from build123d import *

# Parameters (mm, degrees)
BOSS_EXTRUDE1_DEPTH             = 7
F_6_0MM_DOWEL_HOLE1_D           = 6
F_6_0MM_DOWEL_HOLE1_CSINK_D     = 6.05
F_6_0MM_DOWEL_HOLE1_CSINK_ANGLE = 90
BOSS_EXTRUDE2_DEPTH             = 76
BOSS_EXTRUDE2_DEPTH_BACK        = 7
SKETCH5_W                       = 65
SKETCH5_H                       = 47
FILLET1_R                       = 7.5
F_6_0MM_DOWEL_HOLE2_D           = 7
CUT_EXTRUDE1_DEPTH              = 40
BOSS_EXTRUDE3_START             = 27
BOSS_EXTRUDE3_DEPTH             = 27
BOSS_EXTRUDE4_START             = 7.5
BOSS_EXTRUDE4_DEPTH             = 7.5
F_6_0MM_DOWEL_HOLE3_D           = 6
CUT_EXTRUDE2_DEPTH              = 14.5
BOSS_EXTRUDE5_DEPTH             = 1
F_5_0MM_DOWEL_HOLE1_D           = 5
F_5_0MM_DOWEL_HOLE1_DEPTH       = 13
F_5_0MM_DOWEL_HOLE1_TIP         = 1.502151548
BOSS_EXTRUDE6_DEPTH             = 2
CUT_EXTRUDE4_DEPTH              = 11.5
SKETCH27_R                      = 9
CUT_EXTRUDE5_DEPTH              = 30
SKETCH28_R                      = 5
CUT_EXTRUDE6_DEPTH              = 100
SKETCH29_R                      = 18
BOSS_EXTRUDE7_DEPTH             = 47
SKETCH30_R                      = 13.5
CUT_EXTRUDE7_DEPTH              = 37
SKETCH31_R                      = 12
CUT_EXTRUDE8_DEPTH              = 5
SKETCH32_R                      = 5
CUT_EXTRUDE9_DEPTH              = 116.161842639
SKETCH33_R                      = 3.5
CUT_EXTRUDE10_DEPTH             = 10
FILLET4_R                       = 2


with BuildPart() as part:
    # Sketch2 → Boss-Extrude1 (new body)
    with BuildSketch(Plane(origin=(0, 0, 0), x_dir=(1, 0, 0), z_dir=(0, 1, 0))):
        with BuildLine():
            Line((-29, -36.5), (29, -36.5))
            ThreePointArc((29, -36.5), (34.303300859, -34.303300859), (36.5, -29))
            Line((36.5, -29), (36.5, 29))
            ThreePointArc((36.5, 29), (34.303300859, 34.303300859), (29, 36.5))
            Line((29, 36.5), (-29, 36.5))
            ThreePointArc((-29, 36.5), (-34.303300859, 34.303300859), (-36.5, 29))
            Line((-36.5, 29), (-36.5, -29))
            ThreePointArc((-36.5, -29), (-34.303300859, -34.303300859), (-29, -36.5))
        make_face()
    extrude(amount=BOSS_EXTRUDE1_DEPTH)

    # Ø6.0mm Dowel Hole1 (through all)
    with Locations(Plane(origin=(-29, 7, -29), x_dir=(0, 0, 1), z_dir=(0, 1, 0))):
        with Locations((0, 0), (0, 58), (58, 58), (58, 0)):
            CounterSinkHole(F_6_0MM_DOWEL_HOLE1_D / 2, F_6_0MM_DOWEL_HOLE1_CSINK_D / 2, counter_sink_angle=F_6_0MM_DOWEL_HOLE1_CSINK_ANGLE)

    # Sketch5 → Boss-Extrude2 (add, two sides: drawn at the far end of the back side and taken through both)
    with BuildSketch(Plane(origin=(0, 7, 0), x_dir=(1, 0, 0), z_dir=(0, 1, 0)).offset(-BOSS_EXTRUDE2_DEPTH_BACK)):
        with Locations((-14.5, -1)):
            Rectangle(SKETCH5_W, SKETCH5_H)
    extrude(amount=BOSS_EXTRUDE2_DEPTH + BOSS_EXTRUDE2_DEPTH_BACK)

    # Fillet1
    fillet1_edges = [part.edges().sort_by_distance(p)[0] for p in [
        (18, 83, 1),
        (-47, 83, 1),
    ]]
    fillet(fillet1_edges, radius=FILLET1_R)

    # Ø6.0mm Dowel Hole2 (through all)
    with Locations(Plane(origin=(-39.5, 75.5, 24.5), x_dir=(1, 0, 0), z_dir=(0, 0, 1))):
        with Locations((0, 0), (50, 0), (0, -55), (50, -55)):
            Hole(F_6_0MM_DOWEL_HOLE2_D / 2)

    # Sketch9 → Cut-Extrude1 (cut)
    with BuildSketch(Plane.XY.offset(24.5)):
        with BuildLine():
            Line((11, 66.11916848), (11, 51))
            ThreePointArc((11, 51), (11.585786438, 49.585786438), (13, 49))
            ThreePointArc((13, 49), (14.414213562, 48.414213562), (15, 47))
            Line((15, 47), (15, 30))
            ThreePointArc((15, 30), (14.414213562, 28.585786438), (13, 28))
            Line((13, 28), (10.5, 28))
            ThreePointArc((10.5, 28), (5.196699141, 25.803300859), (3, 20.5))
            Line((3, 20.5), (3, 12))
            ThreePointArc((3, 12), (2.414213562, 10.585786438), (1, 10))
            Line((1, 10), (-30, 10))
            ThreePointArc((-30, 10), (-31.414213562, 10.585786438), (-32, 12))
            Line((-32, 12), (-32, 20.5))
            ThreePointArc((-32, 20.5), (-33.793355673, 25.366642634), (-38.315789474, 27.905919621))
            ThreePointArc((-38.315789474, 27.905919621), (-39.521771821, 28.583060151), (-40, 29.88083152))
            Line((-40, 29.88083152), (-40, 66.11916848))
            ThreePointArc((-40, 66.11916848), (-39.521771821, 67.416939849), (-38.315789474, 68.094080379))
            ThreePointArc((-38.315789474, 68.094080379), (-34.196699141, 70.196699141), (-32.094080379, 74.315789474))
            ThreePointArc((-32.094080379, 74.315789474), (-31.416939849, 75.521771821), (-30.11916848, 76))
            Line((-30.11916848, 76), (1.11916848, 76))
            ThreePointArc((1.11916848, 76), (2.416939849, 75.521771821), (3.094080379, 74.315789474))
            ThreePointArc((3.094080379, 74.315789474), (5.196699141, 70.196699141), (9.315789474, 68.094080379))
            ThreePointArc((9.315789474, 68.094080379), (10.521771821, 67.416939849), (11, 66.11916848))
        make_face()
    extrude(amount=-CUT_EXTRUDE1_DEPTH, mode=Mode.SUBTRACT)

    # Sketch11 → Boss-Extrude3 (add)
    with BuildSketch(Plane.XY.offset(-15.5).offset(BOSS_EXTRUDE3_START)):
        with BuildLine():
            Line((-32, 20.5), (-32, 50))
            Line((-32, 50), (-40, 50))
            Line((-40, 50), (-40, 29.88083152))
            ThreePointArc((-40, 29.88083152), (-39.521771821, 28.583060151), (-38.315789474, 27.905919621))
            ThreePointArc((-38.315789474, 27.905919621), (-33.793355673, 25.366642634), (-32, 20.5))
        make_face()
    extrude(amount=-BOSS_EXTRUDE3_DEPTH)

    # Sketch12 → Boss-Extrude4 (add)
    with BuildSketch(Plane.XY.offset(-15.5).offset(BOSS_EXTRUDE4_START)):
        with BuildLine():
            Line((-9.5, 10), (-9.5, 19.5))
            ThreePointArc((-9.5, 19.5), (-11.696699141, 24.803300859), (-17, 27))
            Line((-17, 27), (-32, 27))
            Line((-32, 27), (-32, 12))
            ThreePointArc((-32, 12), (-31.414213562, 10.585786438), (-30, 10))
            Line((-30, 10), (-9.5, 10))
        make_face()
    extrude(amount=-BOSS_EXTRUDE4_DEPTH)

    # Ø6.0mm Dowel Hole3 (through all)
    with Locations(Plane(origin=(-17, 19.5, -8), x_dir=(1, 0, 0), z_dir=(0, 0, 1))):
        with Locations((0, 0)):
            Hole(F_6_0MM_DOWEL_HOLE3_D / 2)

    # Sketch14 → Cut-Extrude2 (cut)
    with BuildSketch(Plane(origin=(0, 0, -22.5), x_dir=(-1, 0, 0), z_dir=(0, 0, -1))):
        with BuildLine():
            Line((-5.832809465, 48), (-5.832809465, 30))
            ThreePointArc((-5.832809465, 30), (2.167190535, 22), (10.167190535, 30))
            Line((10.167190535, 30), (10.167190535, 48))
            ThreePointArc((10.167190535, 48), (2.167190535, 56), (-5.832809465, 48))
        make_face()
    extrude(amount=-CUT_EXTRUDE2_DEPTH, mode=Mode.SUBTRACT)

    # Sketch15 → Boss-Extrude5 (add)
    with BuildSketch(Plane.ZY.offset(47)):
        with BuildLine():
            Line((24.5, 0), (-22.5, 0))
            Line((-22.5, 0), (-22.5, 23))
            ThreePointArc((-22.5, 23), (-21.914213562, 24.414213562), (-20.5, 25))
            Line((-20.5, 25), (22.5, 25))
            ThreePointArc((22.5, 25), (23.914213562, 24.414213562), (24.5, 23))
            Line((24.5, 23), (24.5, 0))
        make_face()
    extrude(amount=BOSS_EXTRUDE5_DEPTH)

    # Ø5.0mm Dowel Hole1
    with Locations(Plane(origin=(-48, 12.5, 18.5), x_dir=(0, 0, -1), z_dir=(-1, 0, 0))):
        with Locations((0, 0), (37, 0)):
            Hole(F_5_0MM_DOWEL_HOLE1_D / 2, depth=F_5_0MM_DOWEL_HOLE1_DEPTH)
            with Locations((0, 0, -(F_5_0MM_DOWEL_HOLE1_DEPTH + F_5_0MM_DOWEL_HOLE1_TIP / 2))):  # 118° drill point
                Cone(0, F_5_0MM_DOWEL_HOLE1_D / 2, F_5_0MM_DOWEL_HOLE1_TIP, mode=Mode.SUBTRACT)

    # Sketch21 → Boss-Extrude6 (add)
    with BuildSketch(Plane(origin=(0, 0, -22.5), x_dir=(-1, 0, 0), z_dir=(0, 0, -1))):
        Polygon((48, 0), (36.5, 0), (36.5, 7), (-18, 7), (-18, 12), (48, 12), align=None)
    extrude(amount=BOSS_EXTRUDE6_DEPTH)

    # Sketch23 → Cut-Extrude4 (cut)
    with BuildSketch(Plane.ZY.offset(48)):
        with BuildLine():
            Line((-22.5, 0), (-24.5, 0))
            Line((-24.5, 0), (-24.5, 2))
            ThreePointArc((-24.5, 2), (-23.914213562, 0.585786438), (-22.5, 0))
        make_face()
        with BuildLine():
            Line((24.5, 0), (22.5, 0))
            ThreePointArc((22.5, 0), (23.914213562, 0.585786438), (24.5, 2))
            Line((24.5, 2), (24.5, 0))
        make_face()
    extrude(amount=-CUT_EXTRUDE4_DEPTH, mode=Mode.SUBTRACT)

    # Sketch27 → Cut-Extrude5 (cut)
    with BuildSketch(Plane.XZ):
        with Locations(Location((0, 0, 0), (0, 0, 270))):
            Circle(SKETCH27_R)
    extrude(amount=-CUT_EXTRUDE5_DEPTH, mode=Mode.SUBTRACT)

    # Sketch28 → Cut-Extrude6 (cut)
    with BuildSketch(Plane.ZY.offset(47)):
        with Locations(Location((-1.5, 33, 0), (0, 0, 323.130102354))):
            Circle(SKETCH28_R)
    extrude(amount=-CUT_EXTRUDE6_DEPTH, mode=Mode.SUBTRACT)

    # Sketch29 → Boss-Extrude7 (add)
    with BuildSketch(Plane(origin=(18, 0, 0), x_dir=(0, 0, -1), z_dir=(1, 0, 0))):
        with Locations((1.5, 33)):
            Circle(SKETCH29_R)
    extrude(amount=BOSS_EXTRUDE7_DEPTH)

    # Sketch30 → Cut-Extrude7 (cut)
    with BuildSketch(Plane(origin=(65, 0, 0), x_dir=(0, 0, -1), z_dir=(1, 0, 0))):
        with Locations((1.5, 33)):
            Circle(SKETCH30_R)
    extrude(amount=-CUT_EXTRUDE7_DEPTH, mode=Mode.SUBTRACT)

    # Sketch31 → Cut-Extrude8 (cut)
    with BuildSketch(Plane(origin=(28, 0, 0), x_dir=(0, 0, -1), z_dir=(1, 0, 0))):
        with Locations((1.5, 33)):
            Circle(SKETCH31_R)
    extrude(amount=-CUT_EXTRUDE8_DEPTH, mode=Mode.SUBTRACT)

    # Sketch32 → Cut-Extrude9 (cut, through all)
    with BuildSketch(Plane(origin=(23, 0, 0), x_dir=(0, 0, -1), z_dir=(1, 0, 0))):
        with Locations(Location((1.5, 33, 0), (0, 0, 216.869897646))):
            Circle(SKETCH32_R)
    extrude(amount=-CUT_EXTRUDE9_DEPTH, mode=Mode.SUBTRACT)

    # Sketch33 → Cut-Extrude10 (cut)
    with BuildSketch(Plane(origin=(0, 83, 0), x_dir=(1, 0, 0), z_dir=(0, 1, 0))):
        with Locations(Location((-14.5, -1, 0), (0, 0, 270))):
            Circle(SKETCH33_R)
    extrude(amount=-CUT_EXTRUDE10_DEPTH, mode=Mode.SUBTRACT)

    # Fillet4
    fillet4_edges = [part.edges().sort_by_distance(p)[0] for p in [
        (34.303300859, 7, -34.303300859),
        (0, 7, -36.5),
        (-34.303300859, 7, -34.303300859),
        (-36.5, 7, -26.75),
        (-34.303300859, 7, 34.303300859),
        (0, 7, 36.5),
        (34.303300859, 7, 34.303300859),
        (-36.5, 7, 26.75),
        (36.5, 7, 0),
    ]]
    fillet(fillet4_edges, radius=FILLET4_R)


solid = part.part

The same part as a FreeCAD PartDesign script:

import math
import FreeCAD as App
import Part
import Sketcher

V = App.Vector
Q = App.Units.Quantity


def edges_at(feature, points):
    """Names of the edges that pass closest to the given points."""
    edges = feature.Shape.Edges
    near = lambda p: min(range(len(edges)), key=lambda i: edges[i].distToShape(Part.Vertex(*p))[0])
    return sorted({f"Edge{near(p) + 1}" for p in points})


def add_polygon(sketch, points):
    """Adds a closed chain of lines whose ends are joined by coincident constraints."""
    first, n = sketch.GeometryCount, len(points)
    for a, b in zip(points, points[1:] + points[:1]):
        sketch.addGeometry(Part.LineSegment(App.Vector(*a, 0), App.Vector(*b, 0)), False)
    for i in range(n):
        sketch.addConstraint(Sketcher.Constraint("Coincident", first + i, 2, first + (i + 1) % n, 1))

doc = App.newDocument("Part")
body = doc.addObject("PartDesign::Body", "Body")

# Sketch on XZ plane
sketch1 = body.newObject("Sketcher::SketchObject", "Sketch")
sketch1.AttachmentSupport = (doc.getObject("XZ_Plane"), [""])
sketch1.MapMode = "FlatFace"
sketch1.addGeometry([
    Part.LineSegment(V(-29, 36.5, 0), V(29, 36.5, 0)),  # 0
    Part.ArcOfCircle(Part.Circle(V(29, 29, 0), V(0, 0, 1), 7.5), math.radians(0), math.radians(90)),  # 1
    Part.LineSegment(V(36.5, 29, 0), V(36.5, -29, 0)),  # 2
    Part.ArcOfCircle(Part.Circle(V(29, -29, 0), V(0, 0, 1), 7.5), math.radians(-90), math.radians(0)),  # 3
    Part.LineSegment(V(29, -36.5, 0), V(-29, -36.5, 0)),  # 4
    Part.ArcOfCircle(Part.Circle(V(-29, -29, 0), V(0, 0, 1), 7.5), math.radians(180), math.radians(270)),  # 5
    Part.LineSegment(V(-36.5, -29, 0), V(-36.5, 29, 0)),  # 6
    Part.ArcOfCircle(Part.Circle(V(-29, 29, 0), V(0, 0, 1), 7.5), math.radians(90), math.radians(180)),  # 7
], False)
sketch1.addConstraint([
    Sketcher.Constraint("Tangent", 0, 2, 1, 2),
    Sketcher.Constraint("Tangent", 1, 1, 2, 1),
    Sketcher.Constraint("Tangent", 2, 2, 3, 2),
    Sketcher.Constraint("Tangent", 3, 1, 4, 1),
    Sketcher.Constraint("Tangent", 4, 2, 5, 2),
    Sketcher.Constraint("Tangent", 5, 1, 6, 1),
    Sketcher.Constraint("Tangent", 6, 2, 7, 2),
    Sketcher.Constraint("Tangent", 7, 1, 0, 1),
    Sketcher.Constraint("Horizontal", 0),
    Sketcher.Constraint("Vertical", 2),
    Sketcher.Constraint("Horizontal", 4),
    Sketcher.Constraint("Vertical", 6),
    Sketcher.Constraint("Equal", 1, 3),
    Sketcher.Constraint("Equal", 3, 5),
    Sketcher.Constraint("Equal", 5, 7),
    Sketcher.Constraint("Symmetric", 1, 3, 5, 3, -1, 1),
    Sketcher.Constraint("Equal", 4, 2),
    Sketcher.Constraint("Radius", 1, Q("7.5 mm")),
    Sketcher.Constraint("DistanceX", 0, 1, 0, 2, Q("58 mm")),
])
pad1 = body.newObject("PartDesign::Pad", "Pad")
pad1.Profile = sketch1
pad1.Length = 7
pad1.Reversed = True

# Sketch on XZ plane
sketch2 = body.newObject("Sketcher::SketchObject", "Sketch001")
sketch2.AttachmentSupport = (doc.getObject("XZ_Plane"), [""])
sketch2.MapMode = "FlatFace"
sketch2.AttachmentOffset = App.Placement(V(0, 0, -7), App.Rotation())
sketch2.addGeometry([
    Part.Circle(V(-29, -29, 0), V(0, 0, 1), 3),
    Part.Circle(V(29, -29, 0), V(0, 0, 1), 3),
    Part.Circle(V(29, 29, 0), V(0, 0, 1), 3),
    Part.Circle(V(-29, 29, 0), V(0, 0, 1), 3),
], False)
sketch2.addConstraint([
    Sketcher.Constraint("Equal", 0, 1),
    Sketcher.Constraint("Equal", 1, 2),
    Sketcher.Constraint("Equal", 2, 3),
    Sketcher.Constraint("Symmetric", 0, 3, 2, 3, -1, 1),
    Sketcher.Constraint("Symmetric", 1, 3, 3, 3, -1, 1),
    Sketcher.Constraint("Symmetric", 0, 3, 1, 3, -2),
    Sketcher.Constraint("Diameter", 0, Q("6 mm")),
    Sketcher.Constraint("DistanceX", 0, 3, -1, 1, Q("29 mm")),
    Sketcher.Constraint("DistanceY", 0, 3, -1, 1, Q("29 mm")),
])
doc.recompute()
hole = body.newObject("PartDesign::Hole", "Hole")
hole.Profile = sketch2
hole.ThreadType = "None"
hole.Diameter = 6
hole.DepthType = "ThroughAll"
hole.HoleCutType = "Countersink"
hole.HoleCutDiameter = 6.05
hole.HoleCutCountersinkAngle = 90
hole.Reversed = True

# Sketch on XZ plane
sketch3 = body.newObject("Sketcher::SketchObject", "Sketch002")
sketch3.AttachmentSupport = (doc.getObject("XZ_Plane"), [""])
sketch3.MapMode = "FlatFace"
sketch3.AttachmentOffset = App.Placement(V(0, 0, -7), App.Rotation())
add_polygon(sketch3, [(-47, -22.5), (-47, 24.5), (18, 24.5), (18, -22.5)])  # lines 0-3
sketch3.addConstraint([
    Sketcher.Constraint("Vertical", 0),
    Sketcher.Constraint("Horizontal", 1),
    Sketcher.Constraint("Vertical", 2),
    Sketcher.Constraint("Horizontal", 3),
    Sketcher.Constraint("DistanceX", 1, 1, 1, 2, Q("65 mm")),
    Sketcher.Constraint("DistanceY", 0, 1, 0, 2, Q("47 mm")),
    Sketcher.Constraint("DistanceX", 0, 2, -1, 1, Q("47 mm")),
    Sketcher.Constraint("DistanceY", -1, 1, 0, 2, Q("24.5 mm")),
])
pad2 = body.newObject("PartDesign::Pad", "Pad001")
pad2.Profile = sketch3
pad2.Type = "TwoLengths"
pad2.Length = 76
pad2.Length2 = 7
pad2.Reversed = True
doc.recompute()

fillet = body.newObject("PartDesign::Fillet", "Fillet")
fillet.Base = (pad2, edges_at(pad2, [(18, 83, 1), (-47, 83, 1)]))
fillet.Radius = 7.5

# Sketch on XY plane
sketch4 = body.newObject("Sketcher::SketchObject", "Sketch003")
sketch4.AttachmentSupport = (doc.getObject("XY_Plane"), [""])
sketch4.MapMode = "FlatFace"
sketch4.AttachmentOffset = App.Placement(V(0, 0, 24.5), App.Rotation())
sketch4.addGeometry([
    Part.Circle(V(-39.5, 75.5, 0), V(0, 0, 1), 3.5),
    Part.Circle(V(10.5, 75.5, 0), V(0, 0, 1), 3.5),
    Part.Circle(V(-39.5, 20.5, 0), V(0, 0, 1), 3.5),
    Part.Circle(V(10.5, 20.5, 0), V(0, 0, 1), 3.5),
], False)
sketch4.addConstraint([
    Sketcher.Constraint("Equal", 0, 1),
    Sketcher.Constraint("Equal", 1, 2),
    Sketcher.Constraint("Equal", 2, 3),
    Sketcher.Constraint("Horizontal", 0, 3, 1, 3),
    Sketcher.Constraint("Horizontal", 2, 3, 3, 3),
    Sketcher.Constraint("Vertical", 0, 3, 2, 3),
    Sketcher.Constraint("Vertical", 1, 3, 3, 3),
    Sketcher.Constraint("Diameter", 0, Q("7 mm")),
    Sketcher.Constraint("DistanceX", 0, 3, 1, 3, Q("50 mm")),
    Sketcher.Constraint("DistanceY", 2, 3, 0, 3, Q("55 mm")),
    Sketcher.Constraint("DistanceX", 0, 3, -1, 1, Q("39.5 mm")),
    Sketcher.Constraint("DistanceY", -1, 1, 0, 3, Q("75.5 mm")),
])
doc.recompute()
hole2 = body.newObject("PartDesign::Hole", "Hole001")
hole2.Profile = sketch4
hole2.ThreadType = "None"
hole2.Diameter = 7
hole2.DepthType = "ThroughAll"

# Sketch on XY plane
sketch5 = body.newObject("Sketcher::SketchObject", "Sketch004")
sketch5.AttachmentSupport = (doc.getObject("XY_Plane"), [""])
sketch5.MapMode = "FlatFace"
sketch5.AttachmentOffset = App.Placement(V(0, 0, 24.5), App.Rotation())
sketch5.addGeometry([
    Part.LineSegment(V(11, 51, 0), V(11, 66.119168, 0)),  # 0
    Part.ArcOfCircle(Part.Circle(V(9, 66.119168, 0), V(0, 0, 1), 2), math.radians(0), math.radians(80.91528)),  # 1
    Part.ArcOfCircle(Part.Circle(V(10.5, 75.5, 0), V(0, 0, 1), 7.5), math.radians(-170.91528), math.radians(-99.08472)),  # 2
    Part.ArcOfCircle(Part.Circle(V(1.119168, 74, 0), V(0, 0, 1), 2), math.radians(9.08472), math.radians(90)),  # 3
    Part.LineSegment(V(1.119168, 76, 0), V(-30.119168, 76, 0)),  # 4
    Part.ArcOfCircle(Part.Circle(V(-30.119168, 74, 0), V(0, 0, 1), 2), math.radians(90), math.radians(170.91528)),  # 5
    Part.ArcOfCircle(Part.Circle(V(-39.5, 75.5, 0), V(0, 0, 1), 7.5), math.radians(-80.91528), math.radians(-9.08472)),  # 6
    Part.ArcOfCircle(Part.Circle(V(-38, 66.119168, 0), V(0, 0, 1), 2), math.radians(99.08472), math.radians(180)),  # 7
    Part.LineSegment(V(-40, 66.119168, 0), V(-40, 29.880832, 0)),  # 8
    Part.ArcOfCircle(Part.Circle(V(-38, 29.880832, 0), V(0, 0, 1), 2), math.radians(180), math.radians(260.91528)),  # 9
    Part.ArcOfCircle(Part.Circle(V(-39.5, 20.5, 0), V(0, 0, 1), 7.5), math.radians(0), math.radians(80.91528)),  # 10
    Part.LineSegment(V(-32, 20.5, 0), V(-32, 12, 0)),  # 11
    Part.ArcOfCircle(Part.Circle(V(-30, 12, 0), V(0, 0, 1), 2), math.radians(-180), math.radians(-90)),  # 12
    Part.LineSegment(V(-30, 10, 0), V(1, 10, 0)),  # 13
    Part.ArcOfCircle(Part.Circle(V(1, 12, 0), V(0, 0, 1), 2), math.radians(-90), math.radians(0)),  # 14
    Part.LineSegment(V(3, 12, 0), V(3, 20.5, 0)),  # 15
    Part.ArcOfCircle(Part.Circle(V(10.5, 20.5, 0), V(0, 0, 1), 7.5), math.radians(90), math.radians(180)),  # 16
    Part.LineSegment(V(10.5, 28, 0), V(13, 28, 0)),  # 17
    Part.ArcOfCircle(Part.Circle(V(13, 30, 0), V(0, 0, 1), 2), math.radians(-90), math.radians(0)),  # 18
    Part.LineSegment(V(15, 30, 0), V(15, 47, 0)),  # 19
    Part.ArcOfCircle(Part.Circle(V(13, 47, 0), V(0, 0, 1), 2), math.radians(0), math.radians(90)),  # 20
    Part.ArcOfCircle(Part.Circle(V(13, 51, 0), V(0, 0, 1), 2), math.radians(-180), math.radians(-90)),  # 21
], False)
sketch5.addConstraint([
    Sketcher.Constraint("Tangent", 0, 2, 1, 1),
    Sketcher.Constraint("Tangent", 1, 2, 2, 2),
    Sketcher.Constraint("Tangent", 2, 1, 3, 1),
    Sketcher.Constraint("Tangent", 3, 2, 4, 1),
    Sketcher.Constraint("Tangent", 4, 2, 5, 1),
    Sketcher.Constraint("Tangent", 5, 2, 6, 2),
    Sketcher.Constraint("Tangent", 6, 1, 7, 1),
    Sketcher.Constraint("Tangent", 7, 2, 8, 1),
    Sketcher.Constraint("Tangent", 8, 2, 9, 1),
    Sketcher.Constraint("Tangent", 9, 2, 10, 2),
    Sketcher.Constraint("Tangent", 10, 1, 11, 1),
    Sketcher.Constraint("Tangent", 11, 2, 12, 1),
    Sketcher.Constraint("Tangent", 12, 2, 13, 1),
    Sketcher.Constraint("Tangent", 13, 2, 14, 1),
    Sketcher.Constraint("Tangent", 14, 2, 15, 1),
    Sketcher.Constraint("Tangent", 15, 2, 16, 2),
    Sketcher.Constraint("Tangent", 16, 1, 17, 1),
    Sketcher.Constraint("Tangent", 17, 2, 18, 1),
    Sketcher.Constraint("Tangent", 18, 2, 19, 1),
    Sketcher.Constraint("Tangent", 19, 2, 20, 1),
    Sketcher.Constraint("Tangent", 20, 2, 21, 2),
    Sketcher.Constraint("Tangent", 21, 1, 0, 1),
    Sketcher.Constraint("Vertical", 0),
    Sketcher.Constraint("Horizontal", 4),
    Sketcher.Constraint("Vertical", 8),
    Sketcher.Constraint("Vertical", 11),
    Sketcher.Constraint("Horizontal", 13),
    Sketcher.Constraint("Vertical", 15),
    Sketcher.Constraint("Horizontal", 17),
    Sketcher.Constraint("Vertical", 19),
    Sketcher.Constraint("Equal", 1, 3),
    Sketcher.Constraint("Equal", 3, 5),
    Sketcher.Constraint("Equal", 2, 6),
    Sketcher.Constraint("Equal", 5, 7),
    Sketcher.Constraint("Equal", 7, 9),
    Sketcher.Constraint("Equal", 6, 10),
    Sketcher.Constraint("Equal", 9, 12),
    Sketcher.Constraint("Equal", 12, 14),
    Sketcher.Constraint("Equal", 10, 16),
    Sketcher.Constraint("Equal", 14, 18),
    Sketcher.Constraint("Equal", 18, 20),
    Sketcher.Constraint("Equal", 20, 21),
    Sketcher.Constraint("Horizontal", 2, 3, 6, 3),
    Sketcher.Constraint("Horizontal", 1, 3, 7, 3),
    Sketcher.Constraint("Horizontal", 10, 3, 16, 3),
    Sketcher.Constraint("Vertical", 6, 3, 10, 3),
    Sketcher.Constraint("Vertical", 2, 3, 16, 3),
    Sketcher.Constraint("Vertical", 20, 3, 21, 3),
    Sketcher.Constraint("Radius", 1, Q("2 mm")),
    Sketcher.Constraint("Radius", 2, Q("7.5 mm")),
    Sketcher.Constraint("DistanceX", 13, 1, 13, 2, Q("31 mm")),
    Sketcher.Constraint("DistanceY", 19, 1, 19, 2, Q("17 mm")),
    Sketcher.Constraint("DistanceX", 17, 1, 17, 2, Q("2.5 mm")),
    Sketcher.Constraint("DistanceY", 11, 2, 11, 1, Q("8.5 mm")),
    Sketcher.Constraint("DistanceX", -1, 1, 1, 3, Q("9 mm")),
    Sketcher.Constraint("DistanceY", -1, 1, 3, 3, Q("74 mm")),
    Sketcher.Constraint("DistanceY", -1, 1, 12, 3, Q("12 mm")),
    Sketcher.Constraint("DistanceY", 10, 3, 6, 3, Q("55 mm")),
])
pocket1 = body.newObject("PartDesign::Pocket", "Pocket")
pocket1.Profile = sketch5
pocket1.Length = 40

# Sketch on XY plane
sketch6 = body.newObject("Sketcher::SketchObject", "Sketch005")
sketch6.AttachmentSupport = (doc.getObject("XY_Plane"), [""])
sketch6.MapMode = "FlatFace"
sketch6.AttachmentOffset = App.Placement(V(0, 0, 11.5), App.Rotation())
sketch6.addGeometry([
    Part.LineSegment(V(-32, 20.5, 0), V(-32, 50, 0)),  # 0
    Part.LineSegment(V(-32, 50, 0), V(-40, 50, 0)),  # 1
    Part.LineSegment(V(-40, 50, 0), V(-40, 29.880832, 0)),  # 2
    Part.ArcOfCircle(Part.Circle(V(-38, 29.880832, 0), V(0, 0, 1), 2), math.radians(180), math.radians(260.91528)),  # 3
    Part.ArcOfCircle(Part.Circle(V(-39.5, 20.5, 0), V(0, 0, 1), 7.5), math.radians(0), math.radians(80.91528)),  # 4
], False)
sketch6.addConstraint([
    Sketcher.Constraint("Coincident", 0, 2, 1, 1),
    Sketcher.Constraint("Coincident", 1, 2, 2, 1),
    Sketcher.Constraint("Tangent", 2, 2, 3, 1),
    Sketcher.Constraint("Tangent", 3, 2, 4, 2),
    Sketcher.Constraint("Tangent", 4, 1, 0, 1),
    Sketcher.Constraint("Vertical", 0),
    Sketcher.Constraint("Horizontal", 1),
    Sketcher.Constraint("Vertical", 2),
    Sketcher.Constraint("Radius", 3, Q("2 mm")),
    Sketcher.Constraint("Radius", 4, Q("7.5 mm")),
    Sketcher.Constraint("DistanceX", 1, 2, 1, 1, Q("8 mm")),
    Sketcher.Constraint("DistanceY", 0, 1, 0, 2, Q("29.5 mm")),
    Sketcher.Constraint("DistanceX", 3, 3, -1, 1, Q("38 mm")),
    Sketcher.Constraint("DistanceY", -1, 1, 0, 2, Q("50 mm")),
])
pad3 = body.newObject("PartDesign::Pad", "Pad002")
pad3.Profile = sketch6
pad3.Length = 27
pad3.Reversed = True

# Sketch on XY plane
sketch7 = body.newObject("Sketcher::SketchObject", "Sketch006")
sketch7.AttachmentSupport = (doc.getObject("XY_Plane"), [""])
sketch7.MapMode = "FlatFace"
sketch7.AttachmentOffset = App.Placement(V(0, 0, -8), App.Rotation())
sketch7.addGeometry([
    Part.LineSegment(V(-9.5, 10, 0), V(-9.5, 19.5, 0)),  # 0
    Part.ArcOfCircle(Part.Circle(V(-17, 19.5, 0), V(0, 0, 1), 7.5), math.radians(0), math.radians(90)),  # 1
    Part.LineSegment(V(-17, 27, 0), V(-32, 27, 0)),  # 2
    Part.LineSegment(V(-32, 27, 0), V(-32, 12, 0)),  # 3
    Part.ArcOfCircle(Part.Circle(V(-30, 12, 0), V(0, 0, 1), 2), math.radians(-180), math.radians(-90)),  # 4
    Part.LineSegment(V(-30, 10, 0), V(-9.5, 10, 0)),  # 5
], False)
sketch7.addConstraint([
    Sketcher.Constraint("Tangent", 0, 2, 1, 1),
    Sketcher.Constraint("Tangent", 1, 2, 2, 1),
    Sketcher.Constraint("Coincident", 2, 2, 3, 1),
    Sketcher.Constraint("Tangent", 3, 2, 4, 1),
    Sketcher.Constraint("Tangent", 4, 2, 5, 1),
    Sketcher.Constraint("Coincident", 5, 2, 0, 1),
    Sketcher.Constraint("Vertical", 0),
    Sketcher.Constraint("Horizontal", 2),
    Sketcher.Constraint("Vertical", 3),
    Sketcher.Constraint("Horizontal", 5),
    Sketcher.Constraint("Equal", 2, 3),
    Sketcher.Constraint("Radius", 4, Q("2 mm")),
    Sketcher.Constraint("Radius", 1, Q("7.5 mm")),
    Sketcher.Constraint("DistanceX", 2, 2, 2, 1, Q("15 mm")),
    Sketcher.Constraint("DistanceX", 1, 3, -1, 1, Q("17 mm")),
    Sketcher.Constraint("DistanceY", -1, 1, 4, 3, Q("12 mm")),
])
pad4 = body.newObject("PartDesign::Pad", "Pad003")
pad4.Profile = sketch7
pad4.Length = 7.5
pad4.Reversed = True

# Sketch on XY plane
sketch8 = body.newObject("Sketcher::SketchObject", "Sketch007")
sketch8.AttachmentSupport = (doc.getObject("XY_Plane"), [""])
sketch8.MapMode = "FlatFace"
sketch8.AttachmentOffset = App.Placement(V(0, 0, -8), App.Rotation())
sketch8.addGeometry(Part.Circle(V(-17, 19.5, 0), V(0, 0, 1), 3), False)
sketch8.addConstraint([
    Sketcher.Constraint("Diameter", 0, Q("6 mm")),
    Sketcher.Constraint("DistanceX", 0, 3, -1, 1, Q("17 mm")),
    Sketcher.Constraint("DistanceY", -1, 1, 0, 3, Q("19.5 mm")),
])
doc.recompute()
hole3 = body.newObject("PartDesign::Hole", "Hole002")
hole3.Profile = sketch8
hole3.ThreadType = "None"
hole3.Diameter = 6
hole3.DepthType = "ThroughAll"

# Sketch on XY plane
sketch9 = body.newObject("Sketcher::SketchObject", "Sketch008")
sketch9.AttachmentSupport = (doc.getObject("XY_Plane"), [""])
sketch9.MapMode = "FlatFace"
sketch9.AttachmentOffset = App.Placement(V(0, 0, -22.5), App.Rotation())
sketch9.addGeometry([
    Part.LineSegment(V(5.832809, 48, 0), V(5.832809, 30, 0)),
    Part.ArcOfCircle(Part.Circle(V(-2.167191, 30, 0), V(0, 0, 1), 8), math.radians(180), math.radians(360)),
    Part.LineSegment(V(-10.167191, 30, 0), V(-10.167191, 48, 0)),
    Part.ArcOfCircle(Part.Circle(V(-2.167191, 48, 0), V(0, 0, 1), 8), math.radians(0), math.radians(180)),
], False)
sketch9.addConstraint([
    Sketcher.Constraint("Tangent", 0, 2, 1, 2),
    Sketcher.Constraint("Tangent", 1, 1, 2, 1),
    Sketcher.Constraint("Tangent", 2, 2, 3, 2),
    Sketcher.Constraint("Tangent", 3, 1, 0, 1),
    Sketcher.Constraint("Vertical", 0),
    Sketcher.Constraint("Vertical", 2),
    Sketcher.Constraint("Radius", 1, Q("8 mm")),
    Sketcher.Constraint("DistanceY", 0, 2, 0, 1, Q("18 mm")),
    Sketcher.Constraint("DistanceY", -1, 1, 1, 3, Q("30 mm")),
    Sketcher.Constraint("DistanceX", 1, 3, -1, 1, Q("2.167191 mm")),
])
pocket2 = body.newObject("PartDesign::Pocket", "Pocket001")
pocket2.Profile = sketch9
pocket2.Length = 14.5
pocket2.Reversed = True

# Sketch on YZ plane
sketch10 = body.newObject("Sketcher::SketchObject", "Sketch009")
sketch10.AttachmentSupport = (doc.getObject("YZ_Plane"), [""])
sketch10.MapMode = "FlatFace"
sketch10.AttachmentOffset = App.Placement(V(0, 0, -47), App.Rotation())
sketch10.addGeometry([
    Part.LineSegment(V(0, -22.5, 0), V(0, 24.5, 0)),  # 0
    Part.LineSegment(V(0, 24.5, 0), V(23, 24.5, 0)),  # 1
    Part.ArcOfCircle(Part.Circle(V(23, 22.5, 0), V(0, 0, 1), 2), math.radians(0), math.radians(90)),  # 2
    Part.LineSegment(V(25, 22.5, 0), V(25, -20.5, 0)),  # 3
    Part.ArcOfCircle(Part.Circle(V(23, -20.5, 0), V(0, 0, 1), 2), math.radians(-90), math.radians(0)),  # 4
    Part.LineSegment(V(23, -22.5, 0), V(0, -22.5, 0)),  # 5
], False)
sketch10.addConstraint([
    Sketcher.Constraint("Coincident", 0, 2, 1, 1),
    Sketcher.Constraint("Tangent", 1, 2, 2, 2),
    Sketcher.Constraint("Tangent", 2, 1, 3, 1),
    Sketcher.Constraint("Tangent", 3, 2, 4, 2),
    Sketcher.Constraint("Tangent", 4, 1, 5, 1),
    Sketcher.Constraint("Coincident", 5, 2, 0, 1),
    Sketcher.Constraint("Vertical", 0),
    Sketcher.Constraint("Horizontal", 1),
    Sketcher.Constraint("Vertical", 3),
    Sketcher.Constraint("Horizontal", 5),
    Sketcher.Constraint("Equal", 2, 4),
    Sketcher.Constraint("PointOnObject", 0, 2, -2),
    Sketcher.Constraint("Radius", 2, Q("2 mm")),
    Sketcher.Constraint("DistanceX", 1, 1, 1, 2, Q("23 mm")),
    Sketcher.Constraint("DistanceY", 0, 1, 0, 2, Q("47 mm")),
    Sketcher.Constraint("DistanceY", -1, 1, 2, 3, Q("22.5 mm")),
])
pad5 = body.newObject("PartDesign::Pad", "Pad004")
pad5.Profile = sketch10
pad5.Length = 1
pad5.Reversed = True

# Sketch on YZ plane
sketch11 = body.newObject("Sketcher::SketchObject", "Sketch010")
sketch11.AttachmentSupport = (doc.getObject("YZ_Plane"), [""])
sketch11.MapMode = "FlatFace"
sketch11.AttachmentOffset = App.Placement(V(0, 0, -48), App.Rotation())
sketch11.addGeometry([
    Part.Circle(V(12.5, 18.5, 0), V(0, 0, 1), 2.5),
    Part.Circle(V(12.5, -18.5, 0), V(0, 0, 1), 2.5),
], False)
sketch11.addConstraint([
    Sketcher.Constraint("Equal", 0, 1),
    Sketcher.Constraint("Symmetric", 0, 3, 1, 3, -1),
    Sketcher.Constraint("Diameter", 0, Q("5 mm")),
    Sketcher.Constraint("DistanceY", 1, 3, 0, 3, Q("37 mm")),
    Sketcher.Constraint("DistanceX", -1, 1, 0, 3, Q("12.5 mm")),
])
doc.recompute()
hole4 = body.newObject("PartDesign::Hole", "Hole003")
hole4.Profile = sketch11
hole4.ThreadType = "None"
hole4.Diameter = 5
hole4.DepthType = "Dimension"
hole4.Depth = 13
hole4.DrillPoint = "Angled"
hole4.DrillPointAngle = 118
hole4.Reversed = True

# Sketch on XY plane
sketch12 = body.newObject("Sketcher::SketchObject", "Sketch011")
sketch12.AttachmentSupport = (doc.getObject("XY_Plane"), [""])
sketch12.MapMode = "FlatFace"
sketch12.AttachmentOffset = App.Placement(V(0, 0, -22.5), App.Rotation())
add_polygon(sketch12, [(-36.5, 0), (-48, 0), (-48, 12), (18, 12), (18, 7), (-36.5, 7)])  # lines 0-5
sketch12.addConstraint([
    Sketcher.Constraint("Horizontal", 0),
    Sketcher.Constraint("Vertical", 1),
    Sketcher.Constraint("Horizontal", 2),
    Sketcher.Constraint("Vertical", 3),
    Sketcher.Constraint("Horizontal", 4),
    Sketcher.Constraint("Vertical", 5),
    Sketcher.Constraint("PointOnObject", 0, 2, -1),
    Sketcher.Constraint("DistanceX", 2, 1, 2, 2, Q("66 mm")),
    Sketcher.Constraint("DistanceY", 1, 1, 1, 2, Q("12 mm")),
    Sketcher.Constraint("DistanceY", 3, 2, 3, 1, Q("5 mm")),
    Sketcher.Constraint("DistanceX", 0, 2, 0, 1, Q("11.5 mm")),
    Sketcher.Constraint("DistanceX", 0, 2, -1, 1, Q("48 mm")),
])
pad6 = body.newObject("PartDesign::Pad", "Pad005")
pad6.Profile = sketch12
pad6.Length = 2
pad6.Reversed = True

# Sketch on YZ plane
sketch13 = body.newObject("Sketcher::SketchObject", "Sketch012")
sketch13.AttachmentSupport = (doc.getObject("YZ_Plane"), [""])
sketch13.MapMode = "FlatFace"
sketch13.AttachmentOffset = App.Placement(V(0, 0, -48), App.Rotation())
sketch13.addGeometry([
    Part.LineSegment(V(0, -24.5, 0), V(0, -22.5, 0)),  # 0
    Part.ArcOfCircle(Part.Circle(V(2, -22.5, 0), V(0, 0, 1), 2), math.radians(-180), math.radians(-90)),  # 1
    Part.LineSegment(V(2, -24.5, 0), V(0, -24.5, 0)),  # 2
    Part.LineSegment(V(0, 22.5, 0), V(0, 24.5, 0)),  # 3
    Part.LineSegment(V(0, 24.5, 0), V(2, 24.5, 0)),  # 4
    Part.ArcOfCircle(Part.Circle(V(2, 22.5, 0), V(0, 0, 1), 2), math.radians(90), math.radians(180)),  # 5
], False)
sketch13.addConstraint([
    Sketcher.Constraint("Tangent", 0, 2, 1, 1),
    Sketcher.Constraint("Tangent", 1, 2, 2, 1),
    Sketcher.Constraint("Coincident", 2, 2, 0, 1),
    Sketcher.Constraint("Coincident", 3, 2, 4, 1),
    Sketcher.Constraint("Tangent", 4, 2, 5, 1),
    Sketcher.Constraint("Tangent", 5, 2, 3, 1),
    Sketcher.Constraint("Vertical", 0),
    Sketcher.Constraint("Horizontal", 2),
    Sketcher.Constraint("Vertical", 3),
    Sketcher.Constraint("Horizontal", 4),
    Sketcher.Constraint("Equal", 1, 5),
    Sketcher.Constraint("Symmetric", 2, 2, 3, 2, -1, 1),
    Sketcher.Constraint("PointOnObject", 0, 2, -2),
    Sketcher.Constraint("Radius", 1, Q("2 mm")),
    Sketcher.Constraint("DistanceY", 1, 3, 5, 3, Q("45 mm")),
])
pocket3 = body.newObject("PartDesign::Pocket", "Pocket002")
pocket3.Profile = sketch13
pocket3.Length = 11.5
pocket3.Reversed = True

# Sketch on XZ plane
sketch14 = body.newObject("Sketcher::SketchObject", "Sketch013")
sketch14.AttachmentSupport = (doc.getObject("XZ_Plane"), [""])
sketch14.MapMode = "FlatFace"
sketch14.addGeometry(Part.Circle(V(0, 0, 0), V(0, 0, 1), 9), False)
sketch14.addConstraint([
    Sketcher.Constraint("Coincident", 0, 3, -1, 1),
    Sketcher.Constraint("Diameter", 0, Q("18 mm")),
])
pocket4 = body.newObject("PartDesign::Pocket", "Pocket003")
pocket4.Profile = sketch14
pocket4.Length = 30

# Sketch on YZ plane
sketch15 = body.newObject("Sketcher::SketchObject", "Sketch014")
sketch15.AttachmentSupport = (doc.getObject("YZ_Plane"), [""])
sketch15.MapMode = "FlatFace"
sketch15.AttachmentOffset = App.Placement(V(0, 0, -47), App.Rotation())
sketch15.addGeometry(Part.Circle(V(33, -1.5, 0), V(0, 0, 1), 5), False)
sketch15.addConstraint([
    Sketcher.Constraint("Diameter", 0, Q("10 mm")),
    Sketcher.Constraint("DistanceX", -1, 1, 0, 3, Q("33 mm")),
    Sketcher.Constraint("DistanceY", 0, 3, -1, 1, Q("1.5 mm")),
])
pocket5 = body.newObject("PartDesign::Pocket", "Pocket004")
pocket5.Profile = sketch15
pocket5.Length = 100
pocket5.Reversed = True

# Sketch on YZ plane
sketch16 = body.newObject("Sketcher::SketchObject", "Sketch015")
sketch16.AttachmentSupport = (doc.getObject("YZ_Plane"), [""])
sketch16.MapMode = "FlatFace"
sketch16.AttachmentOffset = App.Placement(V(0, 0, 18), App.Rotation())
sketch16.addGeometry(Part.Circle(V(33, -1.5, 0), V(0, 0, 1), 18), False)
sketch16.addConstraint([
    Sketcher.Constraint("Diameter", 0, Q("36 mm")),
    Sketcher.Constraint("DistanceX", -1, 1, 0, 3, Q("33 mm")),
    Sketcher.Constraint("DistanceY", 0, 3, -1, 1, Q("1.5 mm")),
])
pad7 = body.newObject("PartDesign::Pad", "Pad006")
pad7.Profile = sketch16
pad7.Length = 47

# Sketch on YZ plane
sketch17 = body.newObject("Sketcher::SketchObject", "Sketch016")
sketch17.AttachmentSupport = (doc.getObject("YZ_Plane"), [""])
sketch17.MapMode = "FlatFace"
sketch17.AttachmentOffset = App.Placement(V(0, 0, 65), App.Rotation())
sketch17.addGeometry(Part.Circle(V(33, -1.5, 0), V(0, 0, 1), 13.5), False)
sketch17.addConstraint([
    Sketcher.Constraint("Diameter", 0, Q("27 mm")),
    Sketcher.Constraint("DistanceX", -1, 1, 0, 3, Q("33 mm")),
    Sketcher.Constraint("DistanceY", 0, 3, -1, 1, Q("1.5 mm")),
])
pocket6 = body.newObject("PartDesign::Pocket", "Pocket005")
pocket6.Profile = sketch17
pocket6.Length = 37

# Sketch on YZ plane
sketch18 = body.newObject("Sketcher::SketchObject", "Sketch017")
sketch18.AttachmentSupport = (doc.getObject("YZ_Plane"), [""])
sketch18.MapMode = "FlatFace"
sketch18.AttachmentOffset = App.Placement(V(0, 0, 28), App.Rotation())
sketch18.addGeometry(Part.Circle(V(33, -1.5, 0), V(0, 0, 1), 12), False)
sketch18.addConstraint([
    Sketcher.Constraint("Diameter", 0, Q("24 mm")),
    Sketcher.Constraint("DistanceX", -1, 1, 0, 3, Q("33 mm")),
    Sketcher.Constraint("DistanceY", 0, 3, -1, 1, Q("1.5 mm")),
])
pocket7 = body.newObject("PartDesign::Pocket", "Pocket006")
pocket7.Profile = sketch18
pocket7.Length = 5

# Sketch on YZ plane
sketch19 = body.newObject("Sketcher::SketchObject", "Sketch018")
sketch19.AttachmentSupport = (doc.getObject("YZ_Plane"), [""])
sketch19.MapMode = "FlatFace"
sketch19.AttachmentOffset = App.Placement(V(0, 0, 23), App.Rotation())
sketch19.addGeometry(Part.Circle(V(33, -1.5, 0), V(0, 0, 1), 5), False)
sketch19.addConstraint([
    Sketcher.Constraint("Diameter", 0, Q("10 mm")),
    Sketcher.Constraint("DistanceX", -1, 1, 0, 3, Q("33 mm")),
    Sketcher.Constraint("DistanceY", 0, 3, -1, 1, Q("1.5 mm")),
])
pocket8 = body.newObject("PartDesign::Pocket", "Pocket007")
pocket8.Profile = sketch19
pocket8.Type = "ThroughAll"

# Sketch on XZ plane
sketch20 = body.newObject("Sketcher::SketchObject", "Sketch019")
sketch20.AttachmentSupport = (doc.getObject("XZ_Plane"), [""])
sketch20.MapMode = "FlatFace"
sketch20.AttachmentOffset = App.Placement(V(0, 0, -83), App.Rotation())
sketch20.addGeometry(Part.Circle(V(-14.5, 1, 0), V(0, 0, 1), 3.5), False)
sketch20.addConstraint([
    Sketcher.Constraint("Diameter", 0, Q("7 mm")),
    Sketcher.Constraint("DistanceY", -1, 1, 0, 3, Q("1 mm")),
    Sketcher.Constraint("DistanceX", 0, 3, -1, 1, Q("14.5 mm")),
])
pocket9 = body.newObject("PartDesign::Pocket", "Pocket008")
pocket9.Profile = sketch20
pocket9.Length = 10
pocket9.Reversed = True
doc.recompute()

fillet2 = body.newObject("PartDesign::Fillet", "Fillet001")
fillet2.Base = (pocket9, edges_at(pocket9, [
    (34.303, 7, -34.303),
    (0, 7, -36.5),
    (-34.303, 7, -34.303),
    (-36.5, 7, -26.75),
    (-34.303, 7, 34.303),
    (0, 7, 36.5),
    (34.303, 7, 34.303),
    (-36.5, 7, 26.75),
    (36.5, 7, 0),
]))
fillet2.Radius = 2

doc.recompute()
